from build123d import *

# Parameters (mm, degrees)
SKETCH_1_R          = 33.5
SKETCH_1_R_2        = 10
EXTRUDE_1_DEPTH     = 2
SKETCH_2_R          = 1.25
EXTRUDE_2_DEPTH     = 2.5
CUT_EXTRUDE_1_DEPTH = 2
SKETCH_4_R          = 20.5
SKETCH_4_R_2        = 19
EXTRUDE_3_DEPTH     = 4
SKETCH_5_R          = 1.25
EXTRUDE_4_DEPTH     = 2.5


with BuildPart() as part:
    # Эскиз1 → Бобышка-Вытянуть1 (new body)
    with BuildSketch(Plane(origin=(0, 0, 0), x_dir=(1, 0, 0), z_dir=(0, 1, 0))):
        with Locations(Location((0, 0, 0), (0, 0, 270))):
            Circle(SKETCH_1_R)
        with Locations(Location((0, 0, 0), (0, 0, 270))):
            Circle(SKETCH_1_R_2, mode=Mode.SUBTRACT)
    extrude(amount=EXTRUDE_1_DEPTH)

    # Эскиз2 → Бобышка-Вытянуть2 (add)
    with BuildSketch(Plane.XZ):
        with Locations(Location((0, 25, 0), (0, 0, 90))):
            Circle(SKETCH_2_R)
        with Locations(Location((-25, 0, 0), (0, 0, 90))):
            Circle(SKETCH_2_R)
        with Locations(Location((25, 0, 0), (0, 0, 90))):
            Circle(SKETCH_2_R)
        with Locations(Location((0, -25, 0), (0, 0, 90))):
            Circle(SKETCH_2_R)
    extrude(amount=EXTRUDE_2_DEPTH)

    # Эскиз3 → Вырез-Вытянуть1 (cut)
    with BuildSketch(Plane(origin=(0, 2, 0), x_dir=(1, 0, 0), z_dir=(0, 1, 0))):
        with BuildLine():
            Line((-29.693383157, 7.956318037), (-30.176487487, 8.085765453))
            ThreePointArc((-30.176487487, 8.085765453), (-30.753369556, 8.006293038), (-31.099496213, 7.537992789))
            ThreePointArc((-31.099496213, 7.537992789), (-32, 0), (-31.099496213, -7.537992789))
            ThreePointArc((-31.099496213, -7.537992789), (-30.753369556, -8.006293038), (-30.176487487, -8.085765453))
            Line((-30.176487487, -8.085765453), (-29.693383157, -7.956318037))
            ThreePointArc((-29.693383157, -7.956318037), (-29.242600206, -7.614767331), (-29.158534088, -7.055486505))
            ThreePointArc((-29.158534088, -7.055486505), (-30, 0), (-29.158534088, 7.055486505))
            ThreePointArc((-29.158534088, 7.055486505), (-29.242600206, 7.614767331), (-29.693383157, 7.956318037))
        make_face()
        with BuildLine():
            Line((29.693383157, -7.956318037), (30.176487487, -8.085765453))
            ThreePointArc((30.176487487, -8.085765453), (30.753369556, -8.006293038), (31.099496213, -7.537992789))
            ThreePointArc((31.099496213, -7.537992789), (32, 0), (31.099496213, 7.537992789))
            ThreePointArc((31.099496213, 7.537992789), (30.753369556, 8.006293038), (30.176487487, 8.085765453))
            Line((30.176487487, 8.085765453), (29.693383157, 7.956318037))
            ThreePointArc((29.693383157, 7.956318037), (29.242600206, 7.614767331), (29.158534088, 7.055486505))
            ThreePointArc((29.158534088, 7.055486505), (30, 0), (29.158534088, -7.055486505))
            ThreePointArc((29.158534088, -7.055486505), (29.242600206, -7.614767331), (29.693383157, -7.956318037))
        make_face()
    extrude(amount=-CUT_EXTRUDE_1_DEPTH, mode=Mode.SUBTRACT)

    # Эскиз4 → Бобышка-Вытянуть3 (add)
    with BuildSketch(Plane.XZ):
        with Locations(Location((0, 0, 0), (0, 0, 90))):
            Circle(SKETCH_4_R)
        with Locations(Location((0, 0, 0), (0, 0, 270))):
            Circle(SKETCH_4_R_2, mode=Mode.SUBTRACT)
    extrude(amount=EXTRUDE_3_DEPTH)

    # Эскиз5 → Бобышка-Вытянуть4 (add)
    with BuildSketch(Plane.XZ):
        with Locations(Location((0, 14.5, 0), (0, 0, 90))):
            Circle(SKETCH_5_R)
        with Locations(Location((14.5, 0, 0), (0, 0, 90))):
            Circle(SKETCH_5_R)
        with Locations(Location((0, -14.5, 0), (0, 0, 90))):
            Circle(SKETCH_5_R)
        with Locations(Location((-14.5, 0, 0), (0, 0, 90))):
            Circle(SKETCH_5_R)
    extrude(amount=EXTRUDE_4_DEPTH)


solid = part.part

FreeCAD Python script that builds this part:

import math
import FreeCAD as App
import Part
import Sketcher
Q = App.Units.Quantity

doc = App.newDocument("Part")
body = doc.addObject("PartDesign::Body", "Body")

# Sketch on XZ plane
sketch1 = body.newObject("Sketcher::SketchObject", "Sketch")
sketch1.AttachmentSupport = (doc.getObject("XZ_Plane"), [""])
sketch1.MapMode = "FlatFace"
sketch1.addGeometry(Part.Circle(App.Vector(0, 0, 0), App.Vector(0, 0, 1), 34), False)
sketch1.addGeometry(Part.Circle(App.Vector(0, 0, 0), App.Vector(0, 0, 1), 10), False)
sketch1.addConstraint(Sketcher.Constraint("Coincident", 0, 3, -1, 1))
sketch1.addConstraint(Sketcher.Constraint("Coincident", 1, 3, -1, 1))
sketch1.addConstraint(Sketcher.Constraint("Diameter", 0, Q("67 mm")))
sketch1.addConstraint(Sketcher.Constraint("Diameter", 1, Q("20 mm")))
pad1 = body.newObject("PartDesign::Pad", "Pad")
pad1.Profile = sketch1
pad1.Length = 2
pad1.Reversed = True

# Sketch on XZ plane
sketch2 = body.newObject("Sketcher::SketchObject", "Sketch001")
sketch2.AttachmentSupport = (doc.getObject("XZ_Plane"), [""])
sketch2.MapMode = "FlatFace"
sketch2.addGeometry(Part.Circle(App.Vector(0, 25, 0), App.Vector(0, 0, 1), 1.2), False)
sketch2.addGeometry(Part.Circle(App.Vector(-25, 0, 0), App.Vector(0, 0, 1), 1.2), False)
sketch2.addGeometry(Part.Circle(App.Vector(25, 0, 0), App.Vector(0, 0, 1), 1.2), False)
sketch2.addGeometry(Part.Circle(App.Vector(0, -25, 0), App.Vector(0, 0, 1), 1.2), False)
sketch2.addConstraint(Sketcher.Constraint("Equal", 0, 1))
sketch2.addConstraint(Sketcher.Constraint("Equal", 1, 2))
sketch2.addConstraint(Sketcher.Constraint("Equal", 2, 3))
sketch2.addConstraint(Sketcher.Constraint("Symmetric", 1, 3, 2, 3, -1, 1))
sketch2.addConstraint(Sketcher.Constraint("Symmetric", 0, 3, 3, 3, -1, 1))
sketch2.addConstraint(Sketcher.Constraint("PointOnObject", 0, 3, -2))
sketch2.addConstraint(Sketcher.Constraint("PointOnObject", 1, 3, -1))
sketch2.addConstraint(Sketcher.Constraint("Diameter", 0, Q("2.5 mm")))
sketch2.addConstraint(Sketcher.Constraint("DistanceY", -1, 1, 0, 3, Q("25 mm")))
sketch2.addConstraint(Sketcher.Constraint("DistanceX", 1, 3, -1, 1, Q("25 mm")))
pad2 = body.newObject("PartDesign::Pad", "Pad001")
pad2.Profile = sketch2
pad2.Length = 2.5

# Sketch on XZ plane
sketch3 = body.newObject("Sketcher::SketchObject", "Sketch002")
sketch3.AttachmentSupport = (doc.getObject("XZ_Plane"), [""])
sketch3.MapMode = "FlatFace"
sketch3.AttachmentOffset = App.Placement(App.Vector(0, 0, -2), App.Rotation())
sketch3.addGeometry(Part.LineSegment(App.Vector(-29.7, -8, 0), App.Vector(-30.2, -8.1, 0)), False)
sketch3.addGeometry(Part.ArcOfCircle(Part.Circle(App.Vector(-30.4, -7.4, 0), App.Vector(0, 0, 1), 0.8), math.radians(-166), math.radians(-75)), False)
sketch3.addGeometry(Part.ArcOfCircle(Part.Circle(App.Vector(0, 0, 0), App.Vector(0, 0, 1), 32), math.radians(166), math.radians(194)), False)
sketch3.addGeometry(Part.ArcOfCircle(Part.Circle(App.Vector(-30.4, 7.4, 0), App.Vector(0, 0, 1), 0.8), math.radians(75), math.radians(166)), False)
sketch3.addGeometry(Part.LineSegment(App.Vector(-30.2, 8.1, 0), App.Vector(-29.7, 8, 0)), False)
sketch3.addGeometry(Part.ArcOfCircle(Part.Circle(App.Vector(-29.9, 7.2, 0), App.Vector(0, 0, 1), 0.7), math.radians(-14), math.radians(75)), False)
sketch3.addGeometry(Part.ArcOfCircle(Part.Circle(App.Vector(0, 0, 0), App.Vector(0, 0, 1), 30), math.radians(166), math.radians(194)), False)
sketch3.addGeometry(Part.ArcOfCircle(Part.Circle(App.Vector(-29.9, -7.2, 0), App.Vector(0, 0, 1), 0.7), math.radians(-75), math.radians(14)), False)
sketch3.addGeometry(Part.LineSegment(App.Vector(29.7, 8, 0), App.Vector(30.2, 8.1, 0)), False)
sketch3.addGeometry(Part.ArcOfCircle(Part.Circle(App.Vector(30.4, 7.4, 0), App.Vector(0, 0, 1), 0.8), math.radians(14), math.radians(105)), False)
sketch3.addGeometry(Part.ArcOfCircle(Part.Circle(App.Vector(0, 0, 0), App.Vector(0, 0, 1), 32), math.radians(-14), math.radians(14)), False)
sketch3.addGeometry(Part.ArcOfCircle(Part.Circle(App.Vector(30.4, -7.4, 0), App.Vector(0, 0, 1), 0.8), math.radians(-105), math.radians(-14)), False)
sketch3.addGeometry(Part.LineSegment(App.Vector(30.2, -8.1, 0), App.Vector(29.7, -8, 0)), False)
sketch3.addGeometry(Part.ArcOfCircle(Part.Circle(App.Vector(29.9, -7.2, 0), App.Vector(0, 0, 1), 0.7), math.radians(166), math.radians(255)), False)
sketch3.addGeometry(Part.ArcOfCircle(Part.Circle(App.Vector(0, 0, 0), App.Vector(0, 0, 1), 30), math.radians(-14), math.radians(14)), False)
sketch3.addGeometry(Part.ArcOfCircle(Part.Circle(App.Vector(29.9, 7.2, 0), App.Vector(0, 0, 1), 0.7), math.radians(105), math.radians(194)), False)
sketch3.addConstraint(Sketcher.Constraint("Tangent", 0, 2, 1, 2))
sketch3.addConstraint(Sketcher.Constraint("Tangent", 1, 1, 2, 2))
sketch3.addConstraint(Sketcher.Constraint("Tangent", 2, 1, 3, 2))
sketch3.addConstraint(Sketcher.Constraint("Tangent", 3, 1, 4, 1))
sketch3.addConstraint(Sketcher.Constraint("Tangent", 4, 2, 5, 2))
sketch3.addConstraint(Sketcher.Constraint("Tangent", 5, 1, 6, 1))
sketch3.addConstraint(Sketcher.Constraint("Tangent", 6, 2, 7, 2))
sketch3.addConstraint(Sketcher.Constraint("Tangent", 7, 1, 0, 1))
sketch3.addConstraint(Sketcher.Constraint("Tangent", 8, 2, 9, 2))
sketch3.addConstraint(Sketcher.Constraint("Tangent", 9, 1, 10, 2))
sketch3.addConstraint(Sketcher.Constraint("Tangent", 10, 1, 11, 2))
sketch3.addConstraint(Sketcher.Constraint("Tangent", 11, 1, 12, 1))
sketch3.addConstraint(Sketcher.Constraint("Tangent", 12, 2, 13, 2))
sketch3.addConstraint(Sketcher.Constraint("Tangent", 13, 1, 14, 1))
sketch3.addConstraint(Sketcher.Constraint("Tangent", 14, 2, 15, 2))
sketch3.addConstraint(Sketcher.Constraint("Tangent", 15, 1, 8, 1))
sketch3.addConstraint(Sketcher.Constraint("Coincident", 2, 3, -1, 1))
sketch3.addConstraint(Sketcher.Constraint("Coincident", 6, 3, -1, 1))
sketch3.addConstraint(Sketcher.Constraint("Coincident", 10, 3, -1, 1))
sketch3.addConstraint(Sketcher.Constraint("Coincident", 14, 3, -1, 1))
sketch3.addConstraint(Sketcher.Constraint("Equal", 1, 3))
sketch3.addConstraint(Sketcher.Constraint("Equal", 3, 5))
sketch3.addConstraint(Sketcher.Constraint("Equal", 5, 7))
sketch3.addConstraint(Sketcher.Constraint("Equal", 7, 9))
sketch3.addConstraint(Sketcher.Constraint("Equal", 2, 10))
sketch3.addConstraint(Sketcher.Constraint("Equal", 9, 11))
sketch3.addConstraint(Sketcher.Constraint("Equal", 11, 13))
sketch3.addConstraint(Sketcher.Constraint("Equal", 6, 14))
sketch3.addConstraint(Sketcher.Constraint("Equal", 13, 15))
sketch3.addConstraint(Sketcher.Constraint("Symmetric", 0, 2, 8, 2, -1, 1))
sketch3.addConstraint(Sketcher.Constraint("Symmetric", 3, 1, 11, 1, -1, 1))
sketch3.addConstraint(Sketcher.Constraint("Symmetric", 3, 1, 8, 2, -2))
sketch3.addConstraint(Sketcher.Constraint("Radius", 2, Q("32 mm")))
sketch3.addConstraint(Sketcher.Constraint("Radius", 6, Q("30 mm")))
sketch3.addConstraint(Sketcher.Constraint("Angle", 0, Q("-165 deg")))
sketch3.addConstraint(Sketcher.Constraint("Radius", 1, Q("0.75 mm")))
sketch3.addConstraint(Sketcher.Constraint("DistanceX", 1, 3, -1, 1, Q("30.370602 mm")))
pocket1 = body.newObject("PartDesign::Pocket", "Pocket")
pocket1.Profile = sketch3
pocket1.Length = 2
pocket1.Reversed = True

# Sketch on XZ plane
sketch4 = body.newObject("Sketcher::SketchObject", "Sketch003")
sketch4.AttachmentSupport = (doc.getObject("XZ_Plane"), [""])
sketch4.MapMode = "FlatFace"
sketch4.addGeometry(Part.Circle(App.Vector(0, 0, 0), App.Vector(0, 0, 1), 20), False)
sketch4.addGeometry(Part.Circle(App.Vector(0, 0, 0), App.Vector(0, 0, 1), 19), False)
sketch4.addConstraint(Sketcher.Constraint("Coincident", 0, 3, -1, 1))
sketch4.addConstraint(Sketcher.Constraint("Coincident", 1, 3, -1, 1))
sketch4.addConstraint(Sketcher.Constraint("Diameter", 0, Q("41 mm")))
sketch4.addConstraint(Sketcher.Constraint("Diameter", 1, Q("38 mm")))
pad3 = body.newObject("PartDesign::Pad", "Pad002")
pad3.Profile = sketch4
pad3.Length = 4

# Sketch on XZ plane
sketch5 = body.newObject("Sketcher::SketchObject", "Sketch004")
sketch5.AttachmentSupport = (doc.getObject("XZ_Plane"), [""])
sketch5.MapMode = "FlatFace"
sketch5.addGeometry(Part.Circle(App.Vector(0, 14.5, 0), App.Vector(0, 0, 1), 1.2), False)
sketch5.addGeometry(Part.Circle(App.Vector(14.5, 0, 0), App.Vector(0, 0, 1), 1.2), False)
sketch5.addGeometry(Part.Circle(App.Vector(0, -14.5, 0), App.Vector(0, 0, 1), 1.2), False)
sketch5.addGeometry(Part.Circle(App.Vector(-14.5, 0, 0), App.Vector(0, 0, 1), 1.2), False)
sketch5.addConstraint(Sketcher.Constraint("Equal", 0, 1))
sketch5.addConstraint(Sketcher.Constraint("Equal", 1, 2))
sketch5.addConstraint(Sketcher.Constraint("Equal", 2, 3))
sketch5.addConstraint(Sketcher.Constraint("Symmetric", 0, 3, 2, 3, -1, 1))
sketch5.addConstraint(Sketcher.Constraint("Symmetric", 1, 3, 3, 3, -1, 1))
sketch5.addConstraint(Sketcher.Constraint("PointOnObject", 0, 3, -2))
sketch5.addConstraint(Sketcher.Constraint("PointOnObject", 1, 3, -1))
sketch5.addConstraint(Sketcher.Constraint("Diameter", 0, Q("2.5 mm")))
sketch5.addConstraint(Sketcher.Constraint("DistanceY", 2, 3, 0, 3, Q("29 mm")))
sketch5.addConstraint(Sketcher.Constraint("DistanceX", 3, 3, 1, 3, Q("29 mm")))
pad4 = body.newObject("PartDesign::Pad", "Pad003")
pad4.Profile = sketch5
pad4.Length = 2.5

doc.recompute()
